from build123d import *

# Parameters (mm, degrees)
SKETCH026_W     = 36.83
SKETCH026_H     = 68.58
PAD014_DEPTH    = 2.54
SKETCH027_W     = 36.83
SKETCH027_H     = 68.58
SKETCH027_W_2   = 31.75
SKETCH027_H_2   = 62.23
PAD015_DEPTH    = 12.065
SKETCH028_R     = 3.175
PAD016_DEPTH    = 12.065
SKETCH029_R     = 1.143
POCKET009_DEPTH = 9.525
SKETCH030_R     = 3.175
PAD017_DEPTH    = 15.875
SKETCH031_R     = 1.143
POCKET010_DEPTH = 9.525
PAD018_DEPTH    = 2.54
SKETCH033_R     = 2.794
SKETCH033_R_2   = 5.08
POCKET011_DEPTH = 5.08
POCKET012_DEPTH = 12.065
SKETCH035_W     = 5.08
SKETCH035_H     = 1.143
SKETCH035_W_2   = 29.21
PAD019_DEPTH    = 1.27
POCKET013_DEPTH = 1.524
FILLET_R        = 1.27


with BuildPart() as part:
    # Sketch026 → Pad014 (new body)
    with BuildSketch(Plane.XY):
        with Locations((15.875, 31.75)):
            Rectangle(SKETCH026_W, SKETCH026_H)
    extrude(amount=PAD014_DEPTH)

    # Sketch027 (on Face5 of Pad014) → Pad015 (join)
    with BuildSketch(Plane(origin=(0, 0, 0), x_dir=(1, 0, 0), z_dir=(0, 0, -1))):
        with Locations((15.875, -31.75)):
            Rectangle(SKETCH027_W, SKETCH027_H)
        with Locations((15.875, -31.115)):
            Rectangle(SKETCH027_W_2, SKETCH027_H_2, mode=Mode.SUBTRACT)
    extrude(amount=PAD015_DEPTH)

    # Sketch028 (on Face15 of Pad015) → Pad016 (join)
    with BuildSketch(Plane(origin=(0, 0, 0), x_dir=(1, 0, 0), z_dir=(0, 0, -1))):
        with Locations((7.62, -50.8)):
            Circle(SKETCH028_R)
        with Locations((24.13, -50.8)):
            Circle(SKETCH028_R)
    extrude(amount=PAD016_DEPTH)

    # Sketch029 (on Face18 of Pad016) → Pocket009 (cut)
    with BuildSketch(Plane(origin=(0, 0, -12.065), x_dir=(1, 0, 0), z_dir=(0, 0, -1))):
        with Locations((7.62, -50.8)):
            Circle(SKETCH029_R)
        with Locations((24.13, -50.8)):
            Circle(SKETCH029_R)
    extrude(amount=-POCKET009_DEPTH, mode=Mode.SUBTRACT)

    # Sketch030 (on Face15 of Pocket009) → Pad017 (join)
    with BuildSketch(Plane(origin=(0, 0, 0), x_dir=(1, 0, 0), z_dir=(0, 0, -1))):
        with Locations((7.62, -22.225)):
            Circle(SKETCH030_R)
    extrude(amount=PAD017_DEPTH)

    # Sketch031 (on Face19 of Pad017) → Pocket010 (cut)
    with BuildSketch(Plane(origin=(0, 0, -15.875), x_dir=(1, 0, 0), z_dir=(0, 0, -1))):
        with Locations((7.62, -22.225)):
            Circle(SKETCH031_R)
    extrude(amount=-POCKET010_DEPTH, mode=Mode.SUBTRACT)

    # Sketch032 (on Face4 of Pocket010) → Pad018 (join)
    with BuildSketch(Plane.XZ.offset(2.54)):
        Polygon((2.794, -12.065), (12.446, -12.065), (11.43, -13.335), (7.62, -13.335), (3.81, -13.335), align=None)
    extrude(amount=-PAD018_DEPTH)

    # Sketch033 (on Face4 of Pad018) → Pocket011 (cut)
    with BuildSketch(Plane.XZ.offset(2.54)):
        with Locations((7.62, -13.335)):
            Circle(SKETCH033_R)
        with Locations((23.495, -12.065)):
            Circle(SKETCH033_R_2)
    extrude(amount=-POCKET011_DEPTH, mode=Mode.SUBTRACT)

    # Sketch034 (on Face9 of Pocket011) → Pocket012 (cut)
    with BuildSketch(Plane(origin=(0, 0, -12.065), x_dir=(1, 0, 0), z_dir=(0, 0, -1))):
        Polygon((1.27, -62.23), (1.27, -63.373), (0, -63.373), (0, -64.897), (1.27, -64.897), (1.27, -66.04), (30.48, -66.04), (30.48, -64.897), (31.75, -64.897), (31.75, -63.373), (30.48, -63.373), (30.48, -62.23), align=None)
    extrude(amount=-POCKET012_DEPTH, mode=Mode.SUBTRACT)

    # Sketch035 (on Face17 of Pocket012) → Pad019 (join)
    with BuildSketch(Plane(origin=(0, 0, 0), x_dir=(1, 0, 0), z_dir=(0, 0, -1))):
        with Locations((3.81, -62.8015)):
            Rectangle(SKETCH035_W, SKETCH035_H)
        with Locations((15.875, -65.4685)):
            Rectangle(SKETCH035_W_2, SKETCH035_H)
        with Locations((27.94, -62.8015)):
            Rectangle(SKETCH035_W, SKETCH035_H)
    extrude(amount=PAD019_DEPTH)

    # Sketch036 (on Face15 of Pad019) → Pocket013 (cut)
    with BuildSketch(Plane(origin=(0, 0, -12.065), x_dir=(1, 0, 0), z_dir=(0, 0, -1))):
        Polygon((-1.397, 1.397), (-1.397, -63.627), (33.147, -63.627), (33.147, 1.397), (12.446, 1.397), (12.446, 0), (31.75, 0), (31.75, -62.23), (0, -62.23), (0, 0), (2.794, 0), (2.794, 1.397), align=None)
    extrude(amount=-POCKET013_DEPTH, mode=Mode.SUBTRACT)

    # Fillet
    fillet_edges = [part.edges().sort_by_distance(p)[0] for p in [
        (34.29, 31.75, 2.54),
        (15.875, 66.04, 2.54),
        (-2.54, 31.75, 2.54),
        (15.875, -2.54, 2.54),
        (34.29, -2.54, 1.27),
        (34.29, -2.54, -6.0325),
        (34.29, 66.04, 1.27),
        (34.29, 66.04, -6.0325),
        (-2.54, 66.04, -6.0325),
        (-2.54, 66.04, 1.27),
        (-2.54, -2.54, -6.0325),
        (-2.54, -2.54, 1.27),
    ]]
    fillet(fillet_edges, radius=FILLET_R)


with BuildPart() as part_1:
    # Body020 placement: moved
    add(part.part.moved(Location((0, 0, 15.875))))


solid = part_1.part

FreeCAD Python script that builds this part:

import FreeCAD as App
import Part
import Sketcher
Q = App.Units.Quantity


def edges_at(feature, points):
    """Names of the edges that pass closest to the given points."""
    edges = feature.Shape.Edges
    near = lambda p: min(range(len(edges)), key=lambda i: edges[i].distToShape(Part.Vertex(*p))[0])
    return sorted({f"Edge{near(p) + 1}" for p in points})

doc = App.newDocument("Part")
body = doc.addObject("PartDesign::Body", "Body")

sketch1 = body.newObject("Sketcher::SketchObject", "Sketch")
sketch1.AttachmentSupport = (doc.getObject("XY_Plane"), [""])
sketch1.MapMode = "FlatFace"
sketch1.addGeometry([
    Part.LineSegment(App.Vector(-3, 66, 0), App.Vector(-3, -3, 0)),
    Part.LineSegment(App.Vector(-3, -3, 0), App.Vector(34, -3, 0)),
    Part.LineSegment(App.Vector(34, -3, 0), App.Vector(34, 66, 0)),
    Part.LineSegment(App.Vector(34, 66, 0), App.Vector(-3, 66, 0)),
], False)
sketch1.addConstraint([
    Sketcher.Constraint("Coincident", 0, 2, 1, 1),
    Sketcher.Constraint("Coincident", 1, 2, 2, 1),
    Sketcher.Constraint("Coincident", 2, 2, 3, 1),
    Sketcher.Constraint("Coincident", 3, 2, 0, 1),
    Sketcher.Constraint("Vertical", 0),
    Sketcher.Constraint("Horizontal", 1),
    Sketcher.Constraint("Vertical", 2),
    Sketcher.Constraint("Horizontal", 3),
    Sketcher.Constraint("DistanceY", 0, 2, 0, 1, Q("2.7 in")),
    Sketcher.Constraint("DistanceX", 1, 1, 1, 2, Q("1.45 in")),
    Sketcher.Constraint("DistanceX", 0, 2, -1, 1, Q("0.1 in")),
    Sketcher.Constraint("DistanceY", 0, 2, -1, 1, Q("0.1 in")),
])
pad1 = body.newObject("PartDesign::Pad", "Pad")
pad1.Profile = sketch1
pad1.Length = Q("0.1 in")

sketch2 = body.newObject("Sketcher::SketchObject", "Sketch001")
sketch2.AttachmentSupport = (doc.getObject("XY_Plane"), [""])
sketch2.MapMode = "FlatFace"
sketch2.addGeometry([
    Part.LineSegment(App.Vector(-3, -3, 0), App.Vector(-3, 66, 0)),
    Part.LineSegment(App.Vector(-3, 66, 0), App.Vector(34, 66, 0)),
    Part.LineSegment(App.Vector(34, 66, 0), App.Vector(34, -3, 0)),
    Part.LineSegment(App.Vector(34, -3, 0), App.Vector(-3, -3, 0)),
    Part.LineSegment(App.Vector(32, 62, 0), App.Vector(0, 62, 0)),
    Part.LineSegment(App.Vector(0, 62, 0), App.Vector(0, 0, 0)),
    Part.LineSegment(App.Vector(0, 0, 0), App.Vector(32, 0, 0)),
    Part.LineSegment(App.Vector(32, 0, 0), App.Vector(32, 62, 0)),
], False)
sketch2.addConstraint([
    Sketcher.Constraint("Coincident", 0, 2, 1, 1),
    Sketcher.Constraint("Coincident", 1, 2, 2, 1),
    Sketcher.Constraint("Coincident", 2, 2, 3, 1),
    Sketcher.Constraint("Coincident", 3, 2, 0, 1),
    Sketcher.Constraint("Coincident", 4, 2, 5, 1),
    Sketcher.Constraint("Coincident", 5, 2, 6, 1),
    Sketcher.Constraint("Coincident", 6, 2, 7, 1),
    Sketcher.Constraint("Coincident", 7, 2, 4, 1),
    Sketcher.Constraint("Vertical", 0),
    Sketcher.Constraint("Horizontal", 1),
    Sketcher.Constraint("Vertical", 2),
    Sketcher.Constraint("Horizontal", 3),
    Sketcher.Constraint("Horizontal", 4),
    Sketcher.Constraint("Vertical", 5),
    Sketcher.Constraint("Horizontal", 6),
    Sketcher.Constraint("Vertical", 7),
    Sketcher.Constraint("Coincident", 5, 2, -1, 1),
    Sketcher.Constraint("DistanceY", 0, 1, 0, 2, Q("2.7 in")),
    Sketcher.Constraint("DistanceX", 1, 1, 1, 2, Q("1.45 in")),
    Sketcher.Constraint("DistanceX", 4, 2, 4, 1, Q("1.25 in")),
    Sketcher.Constraint("DistanceY", 5, 2, 5, 1, Q("2.45 in")),
    Sketcher.Constraint("DistanceX", 0, 2, -1, 1, Q("0.1 in")),
    Sketcher.Constraint("DistanceY", -1, 1, 0, 2, Q("2.6 in")),
])
pad2 = body.newObject("PartDesign::Pad", "Pad001")
pad2.Profile = sketch2
pad2.Length = Q("0.475 in")
pad2.Reversed = True

sketch3 = body.newObject("Sketcher::SketchObject", "Sketch002")
sketch3.AttachmentSupport = (doc.getObject("XY_Plane"), [""])
sketch3.MapMode = "FlatFace"
sketch3.addGeometry([
    Part.Circle(App.Vector(7.6, 50.8, 0), App.Vector(0, 0, 1), 3.2),
    Part.Circle(App.Vector(24.1, 50.8, 0), App.Vector(0, 0, 1), 3.2),
], False)
sketch3.addConstraint([
    Sketcher.Constraint("Equal", 0, 1),
    Sketcher.Constraint("Horizontal", 0, 3, 1, 3),
    Sketcher.Constraint("Diameter", 0, Q("0.25 in")),
    Sketcher.Constraint("DistanceY", -1, 1, 0, 3, Q("2 in")),
    Sketcher.Constraint("DistanceX", -1, 1, 0, 3, Q("0.3 in")),
    Sketcher.Constraint("DistanceX", -1, 1, 1, 3, Q("0.95 in")),
])
pad3 = body.newObject("PartDesign::Pad", "Pad002")
pad3.Profile = sketch3
pad3.Length = Q("0.475 in")
pad3.Reversed = True

sketch4 = body.newObject("Sketcher::SketchObject", "Sketch003")
sketch4.AttachmentSupport = (doc.getObject("XY_Plane"), [""])
sketch4.MapMode = "FlatFace"
sketch4.AttachmentOffset = App.Placement(App.Vector(0, 0, -0.475 * 25.4), App.Rotation())
sketch4.addGeometry([
    Part.Circle(App.Vector(7.6, 50.8, 0), App.Vector(0, 0, 1), 1.1),
    Part.Circle(App.Vector(24.1, 50.8, 0), App.Vector(0, 0, 1), 1.1),
], False)
sketch4.addConstraint([
    Sketcher.Constraint("Equal", 0, 1),
    Sketcher.Constraint("Horizontal", 0, 3, 1, 3),
    Sketcher.Constraint("Diameter", 0, Q("0.09 in")),
    Sketcher.Constraint("DistanceY", -1, 1, 0, 3, Q("2 in")),
    Sketcher.Constraint("DistanceX", -1, 1, 0, 3, Q("0.3 in")),
    Sketcher.Constraint("DistanceX", -1, 1, 1, 3, Q("0.95 in")),
])
pocket1 = body.newObject("PartDesign::Pocket", "Pocket")
pocket1.Profile = sketch4
pocket1.Length = Q("0.375 in")
pocket1.Reversed = True

sketch5 = body.newObject("Sketcher::SketchObject", "Sketch004")
sketch5.AttachmentSupport = (doc.getObject("XY_Plane"), [""])
sketch5.MapMode = "FlatFace"
sketch5.addGeometry(Part.Circle(App.Vector(7.6, 22.2, 0), App.Vector(0, 0, 1), 3.2), False)
sketch5.addConstraint([
    Sketcher.Constraint("Diameter", 0, Q("0.25 in")),
    Sketcher.Constraint("DistanceX", -1, 1, 0, 3, Q("0.3 in")),
    Sketcher.Constraint("DistanceY", -1, 1, 0, 3, Q("0.875 in")),
])
pad4 = body.newObject("PartDesign::Pad", "Pad003")
pad4.Profile = sketch5
pad4.Length = Q("0.625 in")
pad4.Reversed = True

sketch6 = body.newObject("Sketcher::SketchObject", "Sketch005")
sketch6.AttachmentSupport = (doc.getObject("XY_Plane"), [""])
sketch6.MapMode = "FlatFace"
sketch6.AttachmentOffset = App.Placement(App.Vector(0, 0, -0.625 * 25.4), App.Rotation())
sketch6.addGeometry(Part.Circle(App.Vector(7.6, 22.2, 0), App.Vector(0, 0, 1), 1.1), False)
sketch6.addConstraint([
    Sketcher.Constraint("Diameter", 0, Q("0.09 in")),
    Sketcher.Constraint("DistanceX", -1, 1, 0, 3, Q("0.3 in")),
    Sketcher.Constraint("DistanceY", -1, 1, 0, 3, Q("0.875 in")),
])
pocket2 = body.newObject("PartDesign::Pocket", "Pocket001")
pocket2.Profile = sketch6
pocket2.Length = Q("0.375 in")
pocket2.Reversed = True

sketch7 = body.newObject("Sketcher::SketchObject", "Sketch006")
sketch7.AttachmentSupport = (doc.getObject("XZ_Plane"), [""])
sketch7.MapMode = "FlatFace"
sketch7.AttachmentOffset = App.Placement(App.Vector(0, 0, 0.1 * 25.4), App.Rotation())
sketch7.addGeometry([
    Part.LineSegment(App.Vector(12.4, -12.1, 0), App.Vector(2.8, -12.1, 0)),
    Part.LineSegment(App.Vector(2.8, -12.1, 0), App.Vector(3.8, -13.3, 0)),
    Part.LineSegment(App.Vector(3.8, -13.3, 0), App.Vector(11.4, -13.3, 0)),
    Part.LineSegment(App.Vector(11.4, -13.3, 0), App.Vector(12.4, -12.1, 0)),
], False)
sketch7.addConstraint([
    Sketcher.Constraint("Coincident", 0, 2, 1, 1),
    Sketcher.Constraint("Coincident", 1, 2, 2, 1),
    Sketcher.Constraint("Coincident", 2, 2, 3, 1),
    Sketcher.Constraint("Coincident", 3, 2, 0, 1),
    Sketcher.Constraint("Horizontal", 0),
    Sketcher.Constraint("Horizontal", 2),
    Sketcher.Constraint("Equal", 1, 3),
    Sketcher.Constraint("DistanceX", 2, 1, 2, 2, Q("0.3 in")),
    Sketcher.Constraint("DistanceX", 0, 2, 0, 1, Q("0.38 in")),
    Sketcher.Constraint("DistanceX", -1, 1, 0, 2, Q("0.11 in")),
    Sketcher.Constraint("DistanceY", 1, 2, 0, 2, Q("0.05 in")),
    Sketcher.Constraint("DistanceY", 0, 2, -1, 1, Q("0.475 in")),
])
pad5 = body.newObject("PartDesign::Pad", "Pad004")
pad5.Profile = sketch7
pad5.Length = Q("0.1 in")
pad5.Reversed = True

sketch8 = body.newObject("Sketcher::SketchObject", "Sketch007")
sketch8.AttachmentSupport = (doc.getObject("XZ_Plane"), [""])
sketch8.MapMode = "FlatFace"
sketch8.AttachmentOffset = App.Placement(App.Vector(0, 0, 0.1 * 25.4), App.Rotation())
sketch8.addGeometry([
    Part.Circle(App.Vector(7.6, -13.3, 0), App.Vector(0, 0, 1), 2.8),
    Part.Circle(App.Vector(23.5, -12.1, 0), App.Vector(0, 0, 1), 5.1),
], False)
sketch8.addConstraint([
    Sketcher.Constraint("Diameter", 1, Q("0.4 in")),
    Sketcher.Constraint("Diameter", 0, Q("0.22 in")),
    Sketcher.Constraint("DistanceX", -1, 1, 0, 3, Q("0.3 in")),
    Sketcher.Constraint("DistanceY", 0, 3, 1, 3, Q("0.05 in")),
    Sketcher.Constraint("DistanceY", 0, 3, -1, 1, Q("0.525 in")),
    Sketcher.Constraint("DistanceX", -1, 1, 1, 3, Q("0.925 in")),
])
pocket3 = body.newObject("PartDesign::Pocket", "Pocket002")
pocket3.Profile = sketch8
pocket3.Length = Q("0.2 in")

sketch9 = body.newObject("Sketcher::SketchObject", "Sketch008")
sketch9.AttachmentSupport = (doc.getObject("XY_Plane"), [""])
sketch9.MapMode = "FlatFace"
sketch9.AttachmentOffset = App.Placement(App.Vector(0, 0, -0.475 * 25.4), App.Rotation())
sketch9.addGeometry([
    Part.LineSegment(App.Vector(1.3, 62.2, 0), App.Vector(1.3, 63.4, 0)),
    Part.LineSegment(App.Vector(1.3, 63.4, 0), App.Vector(0, 63.4, 0)),
    Part.LineSegment(App.Vector(0, 63.4, 0), App.Vector(0, 64.9, 0)),
    Part.LineSegment(App.Vector(0, 64.9, 0), App.Vector(1.3, 64.9, 0)),
    Part.LineSegment(App.Vector(1.3, 64.9, 0), App.Vector(1.3, 66, 0)),
    Part.LineSegment(App.Vector(1.3, 66, 0), App.Vector(30.5, 66, 0)),
    Part.LineSegment(App.Vector(30.5, 66, 0), App.Vector(30.5, 64.9, 0)),
    Part.LineSegment(App.Vector(30.5, 64.9, 0), App.Vector(31.8, 64.9, 0)),
    Part.LineSegment(App.Vector(31.8, 64.9, 0), App.Vector(31.8, 63.4, 0)),
    Part.LineSegment(App.Vector(31.8, 63.4, 0), App.Vector(30.5, 63.4, 0)),
    Part.LineSegment(App.Vector(30.5, 63.4, 0), App.Vector(30.5, 62.2, 0)),
    Part.LineSegment(App.Vector(30.5, 62.2, 0), App.Vector(1.3, 62.2, 0)),
], False)
sketch9.addConstraint([
    Sketcher.Constraint("Coincident", 0, 2, 1, 1),
    Sketcher.Constraint("Coincident", 1, 2, 2, 1),
    Sketcher.Constraint("Coincident", 2, 2, 3, 1),
    Sketcher.Constraint("Coincident", 3, 2, 4, 1),
    Sketcher.Constraint("Coincident", 4, 2, 5, 1),
    Sketcher.Constraint("Coincident", 5, 2, 6, 1),
    Sketcher.Constraint("Coincident", 6, 2, 7, 1),
    Sketcher.Constraint("Coincident", 7, 2, 8, 1),
    Sketcher.Constraint("Coincident", 8, 2, 9, 1),
    Sketcher.Constraint("Coincident", 9, 2, 10, 1),
    Sketcher.Constraint("Coincident", 10, 2, 11, 1),
    Sketcher.Constraint("Coincident", 11, 2, 0, 1),
    Sketcher.Constraint("Vertical", 0),
    Sketcher.Constraint("Horizontal", 1),
    Sketcher.Constraint("Vertical", 2),
    Sketcher.Constraint("Horizontal", 3),
    Sketcher.Constraint("Vertical", 4),
    Sketcher.Constraint("Horizontal", 5),
    Sketcher.Constraint("Vertical", 6),
    Sketcher.Constraint("Horizontal", 7),
    Sketcher.Constraint("Vertical", 8),
    Sketcher.Constraint("Horizontal", 9),
    Sketcher.Constraint("Vertical", 10),
    Sketcher.Constraint("Horizontal", 11),
    Sketcher.Constraint("PointOnObject", 1, 2, -2),
    Sketcher.Constraint("Horizontal", 3, 2, 6, 2),
    Sketcher.Constraint("Horizontal", 1, 2, 8, 2),
    Sketcher.Constraint("Vertical", 0, 2, 3, 2),
    Sketcher.Constraint("Vertical", 6, 2, 9, 2),
    Sketcher.Constraint("Equal", 3, 7),
    Sketcher.Constraint("Equal", 0, 4),
    Sketcher.Constraint("DistanceX", 1, 2, 1, 1, Q("0.05 in")),
    Sketcher.Constraint("DistanceX", 5, 1, 5, 2, Q("1.15 in")),
    Sketcher.Constraint("DistanceY", 2, 1, 2, 2, Q("0.06 in")),
    Sketcher.Constraint("DistanceY", -1, 1, 4, 2, Q("2.6 in")),
    Sketcher.Constraint("DistanceY", 0, 1, 0, 2, Q("0.045 in")),
])
pocket4 = body.newObject("PartDesign::Pocket", "Pocket003")
pocket4.Profile = sketch9
pocket4.Length = Q("0.475 in")
pocket4.Reversed = True

sketch10 = body.newObject("Sketcher::SketchObject", "Sketch009")
sketch10.AttachmentSupport = (doc.getObject("XY_Plane"), [""])
sketch10.MapMode = "FlatFace"
sketch10.addGeometry([
    Part.LineSegment(App.Vector(1.3, 62.2, 0), App.Vector(1.3, 63.4, 0)),
    Part.LineSegment(App.Vector(1.3, 63.4, 0), App.Vector(6.3, 63.4, 0)),
    Part.LineSegment(App.Vector(6.3, 63.4, 0), App.Vector(6.3, 62.2, 0)),
    Part.LineSegment(App.Vector(6.3, 62.2, 0), App.Vector(1.3, 62.2, 0)),
    Part.LineSegment(App.Vector(1.3, 64.9, 0), App.Vector(1.3, 66, 0)),
    Part.LineSegment(App.Vector(1.3, 66, 0), App.Vector(30.5, 66, 0)),
    Part.LineSegment(App.Vector(30.5, 66, 0), App.Vector(30.5, 64.9, 0)),
    Part.LineSegment(App.Vector(30.5, 64.9, 0), App.Vector(1.3, 64.9, 0)),
    Part.LineSegment(App.Vector(25.4, 62.2, 0), App.Vector(25.4, 63.4, 0)),
    Part.LineSegment(App.Vector(25.4, 63.4, 0), App.Vector(30.5, 63.4, 0)),
    Part.LineSegment(App.Vector(30.5, 63.4, 0), App.Vector(30.5, 62.2, 0)),
    Part.LineSegment(App.Vector(30.5, 62.2, 0), App.Vector(25.4, 62.2, 0)),
], False)
sketch10.addConstraint([
    Sketcher.Constraint("Coincident", 0, 2, 1, 1),
    Sketcher.Constraint("Coincident", 1, 2, 2, 1),
    Sketcher.Constraint("Coincident", 2, 2, 3, 1),
    Sketcher.Constraint("Coincident", 3, 2, 0, 1),
    Sketcher.Constraint("Coincident", 4, 2, 5, 1),
    Sketcher.Constraint("Coincident", 5, 2, 6, 1),
    Sketcher.Constraint("Coincident", 6, 2, 7, 1),
    Sketcher.Constraint("Coincident", 7, 2, 4, 1),
    Sketcher.Constraint("Coincident", 8, 2, 9, 1),
    Sketcher.Constraint("Coincident", 9, 2, 10, 1),
    Sketcher.Constraint("Coincident", 10, 2, 11, 1),
    Sketcher.Constraint("Coincident", 11, 2, 8, 1),
    Sketcher.Constraint("Vertical", 0),
    Sketcher.Constraint("Horizontal", 1),
    Sketcher.Constraint("Vertical", 2),
    Sketcher.Constraint("Horizontal", 3),
    Sketcher.Constraint("Vertical", 4),
    Sketcher.Constraint("Horizontal", 5),
    Sketcher.Constraint("Vertical", 6),
    Sketcher.Constraint("Horizontal", 7),
    Sketcher.Constraint("Vertical", 8),
    Sketcher.Constraint("Horizontal", 9),
    Sketcher.Constraint("Vertical", 10),
    Sketcher.Constraint("Horizontal", 11),
    Sketcher.Constraint("Horizontal", 1, 2, 8, 2),
    Sketcher.Constraint("Horizontal", 3, 2, 10, 2),
    Sketcher.Constraint("Vertical", 3, 2, 4, 2),
    Sketcher.Constraint("Vertical", 6, 2, 9, 2),
    Sketcher.Constraint("Equal", 3, 9),
    Sketcher.Constraint("Equal", 2, 4),
    Sketcher.Constraint("DistanceX", 1, 1, 1, 2, Q("0.2 in")),
    Sketcher.Constraint("DistanceX", -1, 1, 8, 2, Q("1 in")),
    Sketcher.Constraint("DistanceX", 5, 1, 5, 2, Q("1.15 in")),
    Sketcher.Constraint("DistanceY", -1, 1, 4, 2, Q("2.6 in")),
    Sketcher.Constraint("DistanceY", 0, 1, 0, 2, Q("0.045 in")),
    Sketcher.Constraint("DistanceY", -1, 1, 2, 2, Q("2.45 in")),
])
pad6 = body.newObject("PartDesign::Pad", "Pad005")
pad6.Profile = sketch10
pad6.Length = Q("0.05 in")
pad6.Reversed = True

sketch11 = body.newObject("Sketcher::SketchObject", "Sketch010")
sketch11.AttachmentSupport = (doc.getObject("XY_Plane"), [""])
sketch11.MapMode = "FlatFace"
sketch11.AttachmentOffset = App.Placement(App.Vector(0, 0, -0.475 * 25.4), App.Rotation())
sketch11.addGeometry([
    Part.LineSegment(App.Vector(-1.4, -1.4, 0), App.Vector(-1.4, 63.6, 0)),
    Part.LineSegment(App.Vector(-1.4, 63.6, 0), App.Vector(33.1, 63.6, 0)),
    Part.LineSegment(App.Vector(33.1, 63.6, 0), App.Vector(33.1, -1.4, 0)),
    Part.LineSegment(App.Vector(33.1, -1.4, 0), App.Vector(12.4, -1.4, 0)),
    Part.LineSegment(App.Vector(12.4, -1.4, 0), App.Vector(12.4, 0, 0)),
    Part.LineSegment(App.Vector(12.4, 0, 0), App.Vector(31.8, 0, 0)),
    Part.LineSegment(App.Vector(31.8, 0, 0), App.Vector(31.8, 62.2, 0)),
    Part.LineSegment(App.Vector(31.8, 62.2, 0), App.Vector(0, 62.2, 0)),
    Part.LineSegment(App.Vector(0, 62.2, 0), App.Vector(0, 0, 0)),
    Part.LineSegment(App.Vector(0, 0, 0), App.Vector(2.8, 0, 0)),
    Part.LineSegment(App.Vector(2.8, 0, 0), App.Vector(2.8, -1.4, 0)),
    Part.LineSegment(App.Vector(2.8, -1.4, 0), App.Vector(-1.4, -1.4, 0)),
], False)
sketch11.addConstraint([
    Sketcher.Constraint("Coincident", 0, 2, 1, 1),
    Sketcher.Constraint("Coincident", 1, 2, 2, 1),
    Sketcher.Constraint("Coincident", 2, 2, 3, 1),
    Sketcher.Constraint("Coincident", 3, 2, 4, 1),
    Sketcher.Constraint("Coincident", 4, 2, 5, 1),
    Sketcher.Constraint("Coincident", 5, 2, 6, 1),
    Sketcher.Constraint("Coincident", 6, 2, 7, 1),
    Sketcher.Constraint("Coincident", 7, 2, 8, 1),
    Sketcher.Constraint("Coincident", 8, 2, 9, 1),
    Sketcher.Constraint("Coincident", 9, 2, 10, 1),
    Sketcher.Constraint("Coincident", 10, 2, 11, 1),
    Sketcher.Constraint("Coincident", 11, 2, 0, 1),
    Sketcher.Constraint("Vertical", 0),
    Sketcher.Constraint("Horizontal", 1),
    Sketcher.Constraint("Vertical", 2),
    Sketcher.Constraint("Horizontal", 3),
    Sketcher.Constraint("Vertical", 4),
    Sketcher.Constraint("Horizontal", 5),
    Sketcher.Constraint("Vertical", 6),
    Sketcher.Constraint("Horizontal", 7),
    Sketcher.Constraint("Vertical", 8),
    Sketcher.Constraint("Horizontal", 9),
    Sketcher.Constraint("Vertical", 10),
    Sketcher.Constraint("Horizontal", 11),
    Sketcher.Constraint("Coincident", 8, 2, -1, 1),
    Sketcher.Constraint("PointOnObject", 4, 2, -1),
    Sketcher.Constraint("Horizontal", 3, 2, 10, 2),
    Sketcher.Constraint("DistanceX", 1, 1, 1, 2, Q("1.36 in")),
    Sketcher.Constraint("DistanceX", 5, 1, 5, 2, Q("0.76 in")),
    Sketcher.Constraint("DistanceX", 7, 2, 7, 1, Q("1.25 in")),
    Sketcher.Constraint("DistanceX", 9, 1, 9, 2, Q("0.11 in")),
    Sketcher.Constraint("DistanceY", 0, 1, 0, 2, Q("2.56 in")),
    Sketcher.Constraint("DistanceY", 6, 1, 6, 2, Q("2.45 in")),
    Sketcher.Constraint("DistanceX", 3, 2, 3, 1, Q("0.815 in")),
    Sketcher.Constraint("DistanceY", 4, 1, 4, 2, Q("0.055 in")),
])
pocket5 = body.newObject("PartDesign::Pocket", "Pocket004")
pocket5.Profile = sketch11
pocket5.Length = Q("0.06 in")
pocket5.Reversed = True
doc.recompute()

fillet = body.newObject("PartDesign::Fillet", "Fillet")
fillet.Base = (pocket5, edges_at(pocket5, [
    (34.29, 31.75, 2.54),
    (15.875, 66.04, 2.54),
    (-2.54, 31.75, 2.54),
    (15.875, -2.54, 2.54),
    (34.29, -2.54, -4.763),
    (34.29, -2.54, -4.763),
    (34.29, 66.04, -4.763),
    (34.29, 66.04, -4.763),
    (-2.54, 66.04, -4.763),
    (-2.54, 66.04, -4.763),
    (-2.54, -2.54, -4.763),
    (-2.54, -2.54, -4.763),
]))
fillet.Radius = Q("0.05 in")
body2 = doc.addObject("PartDesign::Body", "Body001")
doc.recompute()

body.Placement = App.Placement(App.Vector(0, 0, 15.875), App.Rotation(App.Vector(0, 0, 1), 0))
boolean = body2.newObject("PartDesign::Boolean", "Boolean")
boolean.Type = "Fuse"
boolean.addObjects([body])

doc.recompute()
